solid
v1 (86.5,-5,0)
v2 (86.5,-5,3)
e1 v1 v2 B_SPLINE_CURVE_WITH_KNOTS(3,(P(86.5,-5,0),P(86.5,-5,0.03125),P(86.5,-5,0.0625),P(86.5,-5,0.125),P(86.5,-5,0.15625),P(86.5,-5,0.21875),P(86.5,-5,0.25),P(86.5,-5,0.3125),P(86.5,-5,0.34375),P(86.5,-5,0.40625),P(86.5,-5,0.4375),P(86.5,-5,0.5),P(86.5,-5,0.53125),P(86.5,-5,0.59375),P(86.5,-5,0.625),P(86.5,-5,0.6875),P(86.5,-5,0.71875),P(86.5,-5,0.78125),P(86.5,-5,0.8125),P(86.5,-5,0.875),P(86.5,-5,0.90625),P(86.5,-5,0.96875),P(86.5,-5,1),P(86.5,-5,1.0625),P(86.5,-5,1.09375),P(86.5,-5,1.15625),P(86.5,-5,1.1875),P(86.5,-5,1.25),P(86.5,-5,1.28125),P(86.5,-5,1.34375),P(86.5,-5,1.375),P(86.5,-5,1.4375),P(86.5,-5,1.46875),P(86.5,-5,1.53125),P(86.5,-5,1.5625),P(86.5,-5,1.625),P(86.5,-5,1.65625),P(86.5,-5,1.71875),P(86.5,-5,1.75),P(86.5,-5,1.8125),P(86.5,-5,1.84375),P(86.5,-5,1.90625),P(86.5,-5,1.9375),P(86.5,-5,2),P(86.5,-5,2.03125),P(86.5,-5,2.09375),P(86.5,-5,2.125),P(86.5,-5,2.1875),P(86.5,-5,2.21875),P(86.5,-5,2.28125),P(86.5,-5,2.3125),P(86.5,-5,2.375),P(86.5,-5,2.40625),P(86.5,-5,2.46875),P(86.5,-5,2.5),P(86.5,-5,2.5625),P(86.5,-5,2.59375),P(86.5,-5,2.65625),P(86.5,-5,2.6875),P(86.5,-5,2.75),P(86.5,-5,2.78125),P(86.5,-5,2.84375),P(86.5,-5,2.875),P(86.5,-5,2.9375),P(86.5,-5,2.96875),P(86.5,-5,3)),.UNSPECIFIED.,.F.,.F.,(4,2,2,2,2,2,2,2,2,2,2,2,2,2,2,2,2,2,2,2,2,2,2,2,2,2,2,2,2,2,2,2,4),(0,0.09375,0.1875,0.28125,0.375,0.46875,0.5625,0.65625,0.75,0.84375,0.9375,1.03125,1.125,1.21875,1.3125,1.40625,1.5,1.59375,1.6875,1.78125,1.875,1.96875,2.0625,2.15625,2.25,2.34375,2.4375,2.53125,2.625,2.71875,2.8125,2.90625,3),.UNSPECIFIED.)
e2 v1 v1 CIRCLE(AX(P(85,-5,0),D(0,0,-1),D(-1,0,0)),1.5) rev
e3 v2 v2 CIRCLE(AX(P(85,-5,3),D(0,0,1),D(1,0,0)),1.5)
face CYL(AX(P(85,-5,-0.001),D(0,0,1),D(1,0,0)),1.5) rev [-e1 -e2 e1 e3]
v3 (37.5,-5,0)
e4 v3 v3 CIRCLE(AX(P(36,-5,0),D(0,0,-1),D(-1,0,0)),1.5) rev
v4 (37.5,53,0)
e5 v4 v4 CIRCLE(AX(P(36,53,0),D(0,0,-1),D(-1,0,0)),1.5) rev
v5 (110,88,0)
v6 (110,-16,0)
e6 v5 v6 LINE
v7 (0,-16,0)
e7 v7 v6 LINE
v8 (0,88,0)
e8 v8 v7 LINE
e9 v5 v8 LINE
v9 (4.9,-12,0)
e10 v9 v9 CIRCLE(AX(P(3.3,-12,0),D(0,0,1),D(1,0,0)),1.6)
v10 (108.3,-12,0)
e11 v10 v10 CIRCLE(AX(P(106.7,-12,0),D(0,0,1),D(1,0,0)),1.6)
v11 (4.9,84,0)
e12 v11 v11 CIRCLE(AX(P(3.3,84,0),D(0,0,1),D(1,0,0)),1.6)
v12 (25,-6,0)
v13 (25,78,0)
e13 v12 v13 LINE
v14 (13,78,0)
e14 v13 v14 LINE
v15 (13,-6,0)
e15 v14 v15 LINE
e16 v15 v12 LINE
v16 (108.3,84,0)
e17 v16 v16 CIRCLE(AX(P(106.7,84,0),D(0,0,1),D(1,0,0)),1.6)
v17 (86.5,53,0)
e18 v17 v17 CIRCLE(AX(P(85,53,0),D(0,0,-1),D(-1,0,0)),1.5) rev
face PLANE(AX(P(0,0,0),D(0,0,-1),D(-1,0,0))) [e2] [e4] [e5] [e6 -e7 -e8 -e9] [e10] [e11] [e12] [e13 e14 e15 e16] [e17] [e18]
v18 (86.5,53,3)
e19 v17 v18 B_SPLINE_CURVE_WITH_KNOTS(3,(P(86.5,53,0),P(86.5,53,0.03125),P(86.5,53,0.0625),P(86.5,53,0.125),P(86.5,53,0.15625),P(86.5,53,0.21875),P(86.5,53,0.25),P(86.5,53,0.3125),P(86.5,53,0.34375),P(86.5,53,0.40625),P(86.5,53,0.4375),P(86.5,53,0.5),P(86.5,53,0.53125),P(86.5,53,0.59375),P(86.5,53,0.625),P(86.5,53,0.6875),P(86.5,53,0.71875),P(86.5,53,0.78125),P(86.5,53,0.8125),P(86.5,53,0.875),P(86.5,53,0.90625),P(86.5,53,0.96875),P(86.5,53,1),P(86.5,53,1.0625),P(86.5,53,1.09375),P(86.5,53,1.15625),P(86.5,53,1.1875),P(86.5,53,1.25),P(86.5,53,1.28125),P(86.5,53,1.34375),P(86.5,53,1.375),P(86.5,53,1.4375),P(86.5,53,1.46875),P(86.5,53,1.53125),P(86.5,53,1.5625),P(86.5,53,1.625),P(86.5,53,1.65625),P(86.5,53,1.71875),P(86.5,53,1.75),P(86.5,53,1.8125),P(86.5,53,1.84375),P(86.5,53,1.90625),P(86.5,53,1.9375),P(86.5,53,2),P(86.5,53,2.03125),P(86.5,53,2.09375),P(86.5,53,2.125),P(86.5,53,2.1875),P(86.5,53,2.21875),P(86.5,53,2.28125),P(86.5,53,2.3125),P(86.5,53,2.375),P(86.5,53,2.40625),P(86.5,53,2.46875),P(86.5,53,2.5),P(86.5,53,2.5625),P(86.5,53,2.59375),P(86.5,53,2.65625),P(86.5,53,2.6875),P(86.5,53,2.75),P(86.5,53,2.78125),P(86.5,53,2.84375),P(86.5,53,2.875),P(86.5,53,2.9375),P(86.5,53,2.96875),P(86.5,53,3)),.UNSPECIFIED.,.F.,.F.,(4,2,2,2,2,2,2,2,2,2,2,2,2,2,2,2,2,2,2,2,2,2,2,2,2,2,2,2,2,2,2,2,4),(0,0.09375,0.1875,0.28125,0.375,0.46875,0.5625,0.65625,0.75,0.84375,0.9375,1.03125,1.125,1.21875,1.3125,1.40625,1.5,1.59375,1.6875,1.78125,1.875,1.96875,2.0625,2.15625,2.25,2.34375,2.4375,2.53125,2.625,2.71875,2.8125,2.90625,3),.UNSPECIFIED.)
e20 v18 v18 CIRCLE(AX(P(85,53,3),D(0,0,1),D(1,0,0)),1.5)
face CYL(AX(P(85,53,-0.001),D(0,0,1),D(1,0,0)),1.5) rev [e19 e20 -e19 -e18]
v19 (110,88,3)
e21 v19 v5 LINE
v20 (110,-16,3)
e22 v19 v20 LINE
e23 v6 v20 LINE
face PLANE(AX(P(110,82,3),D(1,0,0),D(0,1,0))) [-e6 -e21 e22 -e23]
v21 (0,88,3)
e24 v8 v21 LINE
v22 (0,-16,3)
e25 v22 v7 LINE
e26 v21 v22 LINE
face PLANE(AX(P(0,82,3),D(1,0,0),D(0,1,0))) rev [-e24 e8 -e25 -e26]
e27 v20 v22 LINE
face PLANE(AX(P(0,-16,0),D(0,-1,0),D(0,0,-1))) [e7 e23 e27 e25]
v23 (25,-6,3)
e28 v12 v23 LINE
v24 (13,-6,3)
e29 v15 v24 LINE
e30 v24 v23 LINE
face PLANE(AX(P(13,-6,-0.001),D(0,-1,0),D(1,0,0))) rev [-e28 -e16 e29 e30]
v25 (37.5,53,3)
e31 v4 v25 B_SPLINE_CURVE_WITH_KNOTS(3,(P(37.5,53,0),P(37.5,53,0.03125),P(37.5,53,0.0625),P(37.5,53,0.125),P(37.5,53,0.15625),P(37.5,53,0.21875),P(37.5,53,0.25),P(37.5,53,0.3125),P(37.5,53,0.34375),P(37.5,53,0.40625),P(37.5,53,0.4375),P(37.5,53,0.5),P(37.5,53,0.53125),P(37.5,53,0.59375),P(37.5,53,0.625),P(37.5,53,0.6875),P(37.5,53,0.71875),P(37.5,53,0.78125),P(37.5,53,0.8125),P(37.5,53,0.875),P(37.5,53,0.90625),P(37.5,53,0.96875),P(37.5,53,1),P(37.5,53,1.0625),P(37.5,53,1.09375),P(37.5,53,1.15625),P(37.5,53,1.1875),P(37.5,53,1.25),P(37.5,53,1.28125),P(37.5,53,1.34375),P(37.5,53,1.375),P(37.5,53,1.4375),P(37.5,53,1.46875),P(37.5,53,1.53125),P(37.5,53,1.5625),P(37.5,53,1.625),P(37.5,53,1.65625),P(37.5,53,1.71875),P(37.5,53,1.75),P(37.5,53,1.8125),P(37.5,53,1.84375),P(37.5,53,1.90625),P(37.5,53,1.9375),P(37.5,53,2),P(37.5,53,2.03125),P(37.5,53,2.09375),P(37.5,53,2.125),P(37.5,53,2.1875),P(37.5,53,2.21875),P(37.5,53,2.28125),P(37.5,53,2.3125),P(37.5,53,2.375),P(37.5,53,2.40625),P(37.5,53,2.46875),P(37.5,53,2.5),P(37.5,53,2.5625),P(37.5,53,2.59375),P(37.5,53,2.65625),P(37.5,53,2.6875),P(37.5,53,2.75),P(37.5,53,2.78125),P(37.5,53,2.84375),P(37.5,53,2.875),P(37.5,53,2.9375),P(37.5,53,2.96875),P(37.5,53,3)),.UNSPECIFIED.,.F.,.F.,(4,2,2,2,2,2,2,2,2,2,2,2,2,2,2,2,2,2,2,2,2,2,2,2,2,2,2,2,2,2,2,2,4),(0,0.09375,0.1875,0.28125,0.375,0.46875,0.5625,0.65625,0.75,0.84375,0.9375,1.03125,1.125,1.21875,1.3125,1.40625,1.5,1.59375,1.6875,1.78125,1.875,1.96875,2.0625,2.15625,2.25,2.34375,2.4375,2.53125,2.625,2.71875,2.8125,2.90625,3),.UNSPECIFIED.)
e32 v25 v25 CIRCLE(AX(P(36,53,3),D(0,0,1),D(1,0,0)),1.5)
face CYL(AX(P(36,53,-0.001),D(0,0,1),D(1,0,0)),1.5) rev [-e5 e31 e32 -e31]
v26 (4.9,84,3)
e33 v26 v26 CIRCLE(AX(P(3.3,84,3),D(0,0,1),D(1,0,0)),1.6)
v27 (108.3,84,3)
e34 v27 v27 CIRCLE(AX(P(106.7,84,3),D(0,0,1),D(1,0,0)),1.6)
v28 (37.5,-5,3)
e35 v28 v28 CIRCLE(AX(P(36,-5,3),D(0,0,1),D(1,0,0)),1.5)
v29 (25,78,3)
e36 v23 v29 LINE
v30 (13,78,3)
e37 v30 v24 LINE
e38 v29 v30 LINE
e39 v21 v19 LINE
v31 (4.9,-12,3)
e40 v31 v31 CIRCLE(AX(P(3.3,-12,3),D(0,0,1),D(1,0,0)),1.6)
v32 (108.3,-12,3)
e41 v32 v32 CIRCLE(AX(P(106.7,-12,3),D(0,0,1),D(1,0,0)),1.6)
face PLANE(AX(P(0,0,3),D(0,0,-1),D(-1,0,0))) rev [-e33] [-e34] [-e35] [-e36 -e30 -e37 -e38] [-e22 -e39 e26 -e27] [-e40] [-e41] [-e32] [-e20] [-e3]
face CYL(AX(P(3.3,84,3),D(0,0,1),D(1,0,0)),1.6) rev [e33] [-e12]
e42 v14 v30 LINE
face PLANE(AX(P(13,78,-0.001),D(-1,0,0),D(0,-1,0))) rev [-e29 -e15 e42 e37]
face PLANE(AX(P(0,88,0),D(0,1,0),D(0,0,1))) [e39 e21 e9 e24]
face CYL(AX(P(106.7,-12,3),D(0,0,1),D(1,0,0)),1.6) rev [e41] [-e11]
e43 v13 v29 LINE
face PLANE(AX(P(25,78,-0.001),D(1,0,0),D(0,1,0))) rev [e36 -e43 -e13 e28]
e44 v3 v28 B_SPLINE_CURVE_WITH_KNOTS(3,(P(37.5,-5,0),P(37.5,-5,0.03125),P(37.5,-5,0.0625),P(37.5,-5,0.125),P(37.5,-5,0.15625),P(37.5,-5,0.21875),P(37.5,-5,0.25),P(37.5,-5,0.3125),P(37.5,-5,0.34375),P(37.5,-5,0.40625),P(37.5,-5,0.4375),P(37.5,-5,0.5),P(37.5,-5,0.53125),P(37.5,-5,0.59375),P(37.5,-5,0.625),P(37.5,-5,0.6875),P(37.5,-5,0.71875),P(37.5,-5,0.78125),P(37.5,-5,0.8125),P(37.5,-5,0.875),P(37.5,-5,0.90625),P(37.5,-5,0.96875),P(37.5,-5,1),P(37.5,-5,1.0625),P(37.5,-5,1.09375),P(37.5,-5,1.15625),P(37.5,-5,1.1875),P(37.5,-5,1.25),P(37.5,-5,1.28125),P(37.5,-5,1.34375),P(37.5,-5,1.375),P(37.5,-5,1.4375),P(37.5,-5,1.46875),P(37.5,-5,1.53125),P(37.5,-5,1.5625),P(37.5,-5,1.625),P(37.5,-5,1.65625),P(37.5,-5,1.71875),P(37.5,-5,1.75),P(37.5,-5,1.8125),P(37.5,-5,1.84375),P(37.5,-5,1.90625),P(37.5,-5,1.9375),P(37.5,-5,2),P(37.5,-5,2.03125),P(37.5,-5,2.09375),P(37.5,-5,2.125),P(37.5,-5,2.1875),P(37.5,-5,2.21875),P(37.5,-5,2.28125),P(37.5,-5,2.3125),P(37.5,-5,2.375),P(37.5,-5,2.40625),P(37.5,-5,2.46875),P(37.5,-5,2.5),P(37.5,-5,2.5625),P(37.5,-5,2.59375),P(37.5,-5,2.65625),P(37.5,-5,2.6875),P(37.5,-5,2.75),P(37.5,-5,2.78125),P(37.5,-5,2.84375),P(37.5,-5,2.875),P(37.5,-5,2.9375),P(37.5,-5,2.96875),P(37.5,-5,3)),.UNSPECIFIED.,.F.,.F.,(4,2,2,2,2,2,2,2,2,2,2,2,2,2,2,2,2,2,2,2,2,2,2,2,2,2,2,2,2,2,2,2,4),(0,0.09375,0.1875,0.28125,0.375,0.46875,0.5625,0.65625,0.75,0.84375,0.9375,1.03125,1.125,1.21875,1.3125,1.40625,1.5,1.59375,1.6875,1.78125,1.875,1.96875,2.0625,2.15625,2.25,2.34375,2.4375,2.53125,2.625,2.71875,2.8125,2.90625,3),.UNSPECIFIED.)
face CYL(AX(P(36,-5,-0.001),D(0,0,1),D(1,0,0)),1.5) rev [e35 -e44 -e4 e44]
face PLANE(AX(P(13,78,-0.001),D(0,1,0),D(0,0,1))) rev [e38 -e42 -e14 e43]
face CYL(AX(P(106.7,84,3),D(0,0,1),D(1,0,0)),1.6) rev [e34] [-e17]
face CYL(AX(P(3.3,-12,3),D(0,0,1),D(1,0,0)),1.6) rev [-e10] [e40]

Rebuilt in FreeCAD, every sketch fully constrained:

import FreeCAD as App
import Part
import Sketcher

V = App.Vector
Q = App.Units.Quantity

doc = App.newDocument("Part")
params = doc.addObject("Spreadsheet::Sheet", "Params")
for row, (alias, value) in enumerate([
    ("sketch1_width", "110 mm"),
    ("sketch1_height", "92 mm"),
    ("pad1_length", "3 mm"),
    ("sketch2_width", "110 mm"),
    ("sketch2_height", "3 mm"),
    ("pad2_length", "6 mm"),
    ("sketch3_width", "110 mm"),
    ("sketch3_height", "3 mm"),
    ("pad3_length", "6 mm"),
    ("sketch4_diameter", "3.2 mm"),
    ("hole_diameter", "3.2 mm"),
    ("sketch5_diameter", "3 mm"),
    ("sketch6_diameter", "3 mm"),
    ("sketch7_diameter", "3 mm"),
    ("sketch8_diameter", "3 mm"),
    ("sketch9_width", "12 mm"),
    ("sketch9_height", "84 mm"),
], start=1):
    params.set(f"A{row}", alias)
    params.set(f"B{row}", "=" + value)
    params.setAlias(f"B{row}", alias)

body = doc.addObject("PartDesign::Body", "Body")

# Sketch on XY plane
sketch1 = doc.addObject("Sketcher::SketchObject", "Sketch")
body.addObject(sketch1)
sketch1.AttachmentSupport = (doc.XY_Plane, [""])
sketch1.MapMode = "FlatFace"
sketch1.addGeometry([
    Part.LineSegment(V(0, 82, 0), V(0, -10, 0)),
    Part.LineSegment(V(0, -10, 0), V(110, -10, 0)),
    Part.LineSegment(V(110, -10, 0), V(110, 82, 0)),
    Part.LineSegment(V(110, 82, 0), V(0, 82, 0)),
], False)
sketch1.addConstraint([
    Sketcher.Constraint("Coincident", 0, 2, 1, 1),
    Sketcher.Constraint("Coincident", 1, 2, 2, 1),
    Sketcher.Constraint("Coincident", 2, 2, 3, 1),
    Sketcher.Constraint("Coincident", 3, 2, 0, 1),
    Sketcher.Constraint("Vertical", 0),
    Sketcher.Constraint("Horizontal", 1),
    Sketcher.Constraint("Vertical", 2),
    Sketcher.Constraint("Horizontal", 3),
    Sketcher.Constraint("PointOnObject", 0, 2, -2),
    Sketcher.Constraint("DistanceX", 1, 1, 1, 2, Q("110 mm")),
    Sketcher.Constraint("DistanceY", 0, 2, 0, 1, Q("92 mm")),
    Sketcher.Constraint("DistanceY", 0, 2, -1, 1, Q("10 mm")),
])
sketch1.setExpression("Constraints[9]", "Params.sketch1_width")
sketch1.setExpression("Constraints[10]", "Params.sketch1_height")
pad1 = doc.addObject("PartDesign::Pad", "Pad")
body.addObject(pad1)
pad1.Profile = sketch1
pad1.setExpression("Length", "Params.pad1_length")

# Sketch on XZ plane
sketch2 = doc.addObject("Sketcher::SketchObject", "Sketch001")
body.addObject(sketch2)
sketch2.AttachmentSupport = (doc.XZ_Plane, [""])
sketch2.MapMode = "FlatFace"
sketch2.AttachmentOffset = App.Placement(V(0, 0, -82), App.Rotation())
sketch2.addGeometry([
    Part.LineSegment(V(0, 0, 0), V(0, 3, 0)),
    Part.LineSegment(V(0, 3, 0), V(110, 3, 0)),
    Part.LineSegment(V(110, 3, 0), V(110, 0, 0)),
    Part.LineSegment(V(110, 0, 0), V(0, 0, 0)),
], False)
sketch2.addConstraint([
    Sketcher.Constraint("Coincident", 0, 2, 1, 1),
    Sketcher.Constraint("Coincident", 1, 2, 2, 1),
    Sketcher.Constraint("Coincident", 2, 2, 3, 1),
    Sketcher.Constraint("Coincident", 3, 2, 0, 1),
    Sketcher.Constraint("Vertical", 0),
    Sketcher.Constraint("Horizontal", 1),
    Sketcher.Constraint("Vertical", 2),
    Sketcher.Constraint("Horizontal", 3),
    Sketcher.Constraint("Coincident", 3, 2, -1, 1),
    Sketcher.Constraint("DistanceX", 1, 1, 1, 2, Q("110 mm")),
    Sketcher.Constraint("DistanceY", 0, 1, 0, 2, Q("3 mm")),
])
sketch2.setExpression("Constraints[9]", "Params.sketch2_width")
sketch2.setExpression("Constraints[10]", "Params.sketch2_height")
pad2 = doc.addObject("PartDesign::Pad", "Pad001")
body.addObject(pad2)
pad2.Profile = sketch2
pad2.setExpression("Length", "Params.pad2_length")
pad2.Reversed = True

# Sketch on XZ plane
sketch3 = doc.addObject("Sketcher::SketchObject", "Sketch002")
body.addObject(sketch3)
sketch3.AttachmentSupport = (doc.XZ_Plane, [""])
sketch3.MapMode = "FlatFace"
sketch3.AttachmentOffset = App.Placement(V(0, 0, 10), App.Rotation())
sketch3.addGeometry([
    Part.LineSegment(V(0, 3, 0), V(0, 0, 0)),
    Part.LineSegment(V(0, 0, 0), V(110, 0, 0)),
    Part.LineSegment(V(110, 0, 0), V(110, 3, 0)),
    Part.LineSegment(V(110, 3, 0), V(0, 3, 0)),
], False)
sketch3.addConstraint([
    Sketcher.Constraint("Coincident", 0, 2, 1, 1),
    Sketcher.Constraint("Coincident", 1, 2, 2, 1),
    Sketcher.Constraint("Coincident", 2, 2, 3, 1),
    Sketcher.Constraint("Coincident", 3, 2, 0, 1),
    Sketcher.Constraint("Vertical", 0),
    Sketcher.Constraint("Horizontal", 1),
    Sketcher.Constraint("Vertical", 2),
    Sketcher.Constraint("Horizontal", 3),
    Sketcher.Constraint("Coincident", 0, 2, -1, 1),
    Sketcher.Constraint("DistanceX", 1, 1, 1, 2, Q("110 mm")),
    Sketcher.Constraint("DistanceY", 0, 2, 0, 1, Q("3 mm")),
])
sketch3.setExpression("Constraints[9]", "Params.sketch3_width")
sketch3.setExpression("Constraints[10]", "Params.sketch3_height")
pad3 = doc.addObject("PartDesign::Pad", "Pad002")
body.addObject(pad3)
pad3.Profile = sketch3
pad3.setExpression("Length", "Params.pad3_length")

# Sketch on XY plane
sketch4 = doc.addObject("Sketcher::SketchObject", "Sketch003")
body.addObject(sketch4)
sketch4.AttachmentSupport = (doc.XY_Plane, [""])
sketch4.MapMode = "FlatFace"
sketch4.AttachmentOffset = App.Placement(V(0, 0, 3), App.Rotation())
sketch4.addGeometry([
    Part.Circle(V(3.3, 84, 0), V(0, 0, 1), 1.6),
    Part.Circle(V(3.3, -12, 0), V(0, 0, 1), 1.6),
    Part.Circle(V(106.7, -12, 0), V(0, 0, 1), 1.6),
    Part.Circle(V(106.7, 84, 0), V(0, 0, 1), 1.6),
], False)
sketch4.addConstraint([
    Sketcher.Constraint("Equal", 0, 1),
    Sketcher.Constraint("Equal", 1, 2),
    Sketcher.Constraint("Equal", 2, 3),
    Sketcher.Constraint("Horizontal", 1, 3, 2, 3),
    Sketcher.Constraint("Horizontal", 0, 3, 3, 3),
    Sketcher.Constraint("Vertical", 0, 3, 1, 3),
    Sketcher.Constraint("Vertical", 2, 3, 3, 3),
    Sketcher.Constraint("Diameter", 0, Q("3.2 mm")),
    Sketcher.Constraint("DistanceY", -1, 1, 0, 3, Q("84 mm")),
    Sketcher.Constraint("DistanceY", 1, 3, -1, 1, Q("12 mm")),
    Sketcher.Constraint("DistanceX", -1, 1, 0, 3, Q("3.3 mm")),
    Sketcher.Constraint("DistanceX", -1, 1, 2, 3, Q("106.7 mm")),
])
sketch4.setExpression("Constraints[7]", "Params.sketch4_diameter")
doc.recompute()
hole = doc.addObject("PartDesign::Hole", "Hole")
body.addObject(hole)
hole.Profile = sketch4
hole.ThreadType = "None"
hole.setExpression("Diameter", "Params.hole_diameter")
hole.DepthType = "ThroughAll"

# Sketch on XY plane
sketch5 = doc.addObject("Sketcher::SketchObject", "Sketch004")
body.addObject(sketch5)
sketch5.AttachmentSupport = (doc.XY_Plane, [""])
sketch5.MapMode = "FlatFace"
sketch5.AttachmentOffset = App.Placement(V(0, 0, 3), App.Rotation())
sketch5.addGeometry(Part.Circle(V(36, 53, 0), V(0, 0, 1), 1.5), False)
sketch5.addConstraint([
    Sketcher.Constraint("Diameter", 0, Q("3 mm")),
    Sketcher.Constraint("DistanceX", -1, 1, 0, 3, Q("36 mm")),
    Sketcher.Constraint("DistanceY", -1, 1, 0, 3, Q("53 mm")),
])
sketch5.setExpression("Constraints[0]", "Params.sketch5_diameter")
pocket1 = doc.addObject("PartDesign::Pocket", "Pocket")
body.addObject(pocket1)
pocket1.Profile = sketch5
pocket1.Type = "UpToFirst"

# Sketch on XY plane
sketch6 = doc.addObject("Sketcher::SketchObject", "Sketch005")
body.addObject(sketch6)
sketch6.AttachmentSupport = (doc.XY_Plane, [""])
sketch6.MapMode = "FlatFace"
sketch6.AttachmentOffset = App.Placement(V(0, 0, 3), App.Rotation())
sketch6.addGeometry(Part.Circle(V(85, 53, 0), V(0, 0, 1), 1.5), False)
sketch6.addConstraint([
    Sketcher.Constraint("Diameter", 0, Q("3 mm")),
    Sketcher.Constraint("DistanceX", -1, 1, 0, 3, Q("85 mm")),
    Sketcher.Constraint("DistanceY", -1, 1, 0, 3, Q("53 mm")),
])
sketch6.setExpression("Constraints[0]", "Params.sketch6_diameter")
pocket2 = doc.addObject("PartDesign::Pocket", "Pocket001")
body.addObject(pocket2)
pocket2.Profile = sketch6
pocket2.Type = "UpToFirst"

# Sketch on XY plane
sketch7 = doc.addObject("Sketcher::SketchObject", "Sketch006")
body.addObject(sketch7)
sketch7.AttachmentSupport = (doc.XY_Plane, [""])
sketch7.MapMode = "FlatFace"
sketch7.AttachmentOffset = App.Placement(V(0, 0, 3), App.Rotation())
sketch7.addGeometry(Part.Circle(V(36, -5, 0), V(0, 0, 1), 1.5), False)
sketch7.addConstraint([
    Sketcher.Constraint("Diameter", 0, Q("3 mm")),
    Sketcher.Constraint("DistanceX", -1, 1, 0, 3, Q("36 mm")),
    Sketcher.Constraint("DistanceY", 0, 3, -1, 1, Q("5 mm")),
])
sketch7.setExpression("Constraints[0]", "Params.sketch7_diameter")
pocket3 = doc.addObject("PartDesign::Pocket", "Pocket002")
body.addObject(pocket3)
pocket3.Profile = sketch7
pocket3.Type = "UpToFirst"

# Sketch on XY plane
sketch8 = doc.addObject("Sketcher::SketchObject", "Sketch007")
body.addObject(sketch8)
sketch8.AttachmentSupport = (doc.XY_Plane, [""])
sketch8.MapMode = "FlatFace"
sketch8.AttachmentOffset = App.Placement(V(0, 0, 3), App.Rotation())
sketch8.addGeometry(Part.Circle(V(85, -5, 0), V(0, 0, 1), 1.5), False)
sketch8.addConstraint([
    Sketcher.Constraint("Diameter", 0, Q("3 mm")),
    Sketcher.Constraint("DistanceX", -1, 1, 0, 3, Q("85 mm")),
    Sketcher.Constraint("DistanceY", 0, 3, -1, 1, Q("5 mm")),
])
sketch8.setExpression("Constraints[0]", "Params.sketch8_diameter")
pocket4 = doc.addObject("PartDesign::Pocket", "Pocket003")
body.addObject(pocket4)
pocket4.Profile = sketch8
pocket4.Type = "UpToFirst"

# Sketch on XY plane
sketch9 = doc.addObject("Sketcher::SketchObject", "Sketch008")
body.addObject(sketch9)
sketch9.AttachmentSupport = (doc.XY_Plane, [""])
sketch9.MapMode = "FlatFace"
sketch9.AttachmentOffset = App.Placement(V(0, 0, 3), App.Rotation())
sketch9.addGeometry([
    Part.LineSegment(V(13, 78, 0), V(13, -6, 0)),
    Part.LineSegment(V(13, -6, 0), V(25, -6, 0)),
    Part.LineSegment(V(25, -6, 0), V(25, 78, 0)),
    Part.LineSegment(V(25, 78, 0), V(13, 78, 0)),
], False)
sketch9.addConstraint([
    Sketcher.Constraint("Coincident", 0, 2, 1, 1),
    Sketcher.Constraint("Coincident", 1, 2, 2, 1),
    Sketcher.Constraint("Coincident", 2, 2, 3, 1),
    Sketcher.Constraint("Coincident", 3, 2, 0, 1),
    Sketcher.Constraint("Vertical", 0),
    Sketcher.Constraint("Horizontal", 1),
    Sketcher.Constraint("Vertical", 2),
    Sketcher.Constraint("Horizontal", 3),
    Sketcher.Constraint("DistanceX", 1, 1, 1, 2, Q("12 mm")),
    Sketcher.Constraint("DistanceY", 0, 2, 0, 1, Q("84 mm")),
    Sketcher.Constraint("DistanceX", -1, 1, 0, 2, Q("13 mm")),
    Sketcher.Constraint("DistanceY", 0, 2, -1, 1, Q("6 mm")),
])
sketch9.setExpression("Constraints[8]", "Params.sketch9_width")
sketch9.setExpression("Constraints[9]", "Params.sketch9_height")
pocket5 = doc.addObject("PartDesign::Pocket", "Pocket004")
body.addObject(pocket5)
pocket5.Profile = sketch9
pocket5.Type = "UpToFirst"

doc.recompute()
